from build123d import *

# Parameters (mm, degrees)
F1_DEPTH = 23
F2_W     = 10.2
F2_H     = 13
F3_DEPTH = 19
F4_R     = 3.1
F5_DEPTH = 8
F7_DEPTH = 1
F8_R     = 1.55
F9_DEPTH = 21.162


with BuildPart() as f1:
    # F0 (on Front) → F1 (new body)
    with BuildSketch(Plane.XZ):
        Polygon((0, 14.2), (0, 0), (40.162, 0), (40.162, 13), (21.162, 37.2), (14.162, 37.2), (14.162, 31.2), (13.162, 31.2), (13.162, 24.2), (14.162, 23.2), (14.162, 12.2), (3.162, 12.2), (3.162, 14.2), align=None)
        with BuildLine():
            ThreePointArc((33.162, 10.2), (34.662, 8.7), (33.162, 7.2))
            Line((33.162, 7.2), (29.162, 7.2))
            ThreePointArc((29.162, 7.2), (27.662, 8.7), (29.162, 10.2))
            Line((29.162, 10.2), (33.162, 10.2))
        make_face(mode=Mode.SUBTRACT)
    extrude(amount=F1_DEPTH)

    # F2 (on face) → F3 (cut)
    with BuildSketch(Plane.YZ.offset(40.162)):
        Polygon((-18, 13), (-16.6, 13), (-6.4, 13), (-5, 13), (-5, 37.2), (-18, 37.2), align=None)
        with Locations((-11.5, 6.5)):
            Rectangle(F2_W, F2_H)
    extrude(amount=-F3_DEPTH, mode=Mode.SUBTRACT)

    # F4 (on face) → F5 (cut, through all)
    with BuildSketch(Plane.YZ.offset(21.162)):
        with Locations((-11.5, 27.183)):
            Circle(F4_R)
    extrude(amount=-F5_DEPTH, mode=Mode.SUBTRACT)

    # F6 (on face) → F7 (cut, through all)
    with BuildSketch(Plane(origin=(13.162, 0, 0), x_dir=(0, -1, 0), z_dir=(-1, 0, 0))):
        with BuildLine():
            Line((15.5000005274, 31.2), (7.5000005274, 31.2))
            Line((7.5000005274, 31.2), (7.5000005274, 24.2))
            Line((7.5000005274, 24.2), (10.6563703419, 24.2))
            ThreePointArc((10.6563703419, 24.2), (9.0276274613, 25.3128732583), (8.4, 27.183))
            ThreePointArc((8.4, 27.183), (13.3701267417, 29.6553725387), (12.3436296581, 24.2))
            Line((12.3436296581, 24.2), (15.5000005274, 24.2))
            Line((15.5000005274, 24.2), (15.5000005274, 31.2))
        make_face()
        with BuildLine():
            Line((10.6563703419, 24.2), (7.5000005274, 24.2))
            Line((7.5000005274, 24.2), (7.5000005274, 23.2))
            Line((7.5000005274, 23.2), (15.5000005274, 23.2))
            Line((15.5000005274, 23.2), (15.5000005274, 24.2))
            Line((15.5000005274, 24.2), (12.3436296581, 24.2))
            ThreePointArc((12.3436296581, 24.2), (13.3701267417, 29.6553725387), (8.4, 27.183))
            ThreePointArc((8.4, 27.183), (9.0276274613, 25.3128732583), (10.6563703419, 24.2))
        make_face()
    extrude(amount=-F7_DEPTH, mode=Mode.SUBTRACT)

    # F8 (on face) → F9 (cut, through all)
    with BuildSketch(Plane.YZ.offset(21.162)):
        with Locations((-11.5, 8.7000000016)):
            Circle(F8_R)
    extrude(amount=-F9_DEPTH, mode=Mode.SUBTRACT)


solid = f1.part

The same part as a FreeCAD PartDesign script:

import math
import FreeCAD as App
import Part
import Sketcher

V = App.Vector
Q = App.Units.Quantity

doc = App.newDocument("Part")
body = doc.addObject("PartDesign::Body", "Body")

# Sketch on XZ plane
sketch1 = doc.addObject("Sketcher::SketchObject", "Sketch")
body.addObject(sketch1)
sketch1.AttachmentSupport = (doc.XZ_Plane, [""])
sketch1.MapMode = "FlatFace"
sketch1.addGeometry([
    Part.LineSegment(V(0, 14.2, 0), V(0, 0, 0)),  # 0
    Part.LineSegment(V(0, 0, 0), V(40.2, 0, 0)),  # 1
    Part.LineSegment(V(40.2, 0, 0), V(40.2, 13, 0)),  # 2
    Part.LineSegment(V(40.2, 13, 0), V(21.2, 37.2, 0)),  # 3
    Part.LineSegment(V(21.2, 37.2, 0), V(14.2, 37.2, 0)),  # 4
    Part.LineSegment(V(14.2, 37.2, 0), V(14.2, 31.2, 0)),  # 5
    Part.LineSegment(V(14.2, 31.2, 0), V(13.2, 31.2, 0)),  # 6
    Part.LineSegment(V(13.2, 31.2, 0), V(13.2, 24.2, 0)),  # 7
    Part.LineSegment(V(13.2, 24.2, 0), V(14.2, 23.2, 0)),  # 8
    Part.LineSegment(V(14.2, 23.2, 0), V(14.2, 12.2, 0)),  # 9
    Part.LineSegment(V(14.2, 12.2, 0), V(3.2, 12.2, 0)),  # 10
    Part.LineSegment(V(3.2, 12.2, 0), V(3.2, 14.2, 0)),  # 11
    Part.LineSegment(V(3.2, 14.2, 0), V(0, 14.2, 0)),  # 12
    Part.LineSegment(V(29.2, 10.2, 0), V(33.2, 10.2, 0)),  # 13
    Part.ArcOfCircle(Part.Circle(V(33.2, 8.7, 0), V(0, 0, 1), 1.5), math.radians(-90), math.radians(90)),  # 14
    Part.LineSegment(V(33.2, 7.2, 0), V(29.2, 7.2, 0)),  # 15
    Part.ArcOfCircle(Part.Circle(V(29.2, 8.7, 0), V(0, 0, 1), 1.5), math.radians(90), math.radians(270)),  # 16
], False)
sketch1.addConstraint([
    Sketcher.Constraint("Coincident", 0, 2, 1, 1),
    Sketcher.Constraint("Coincident", 1, 2, 2, 1),
    Sketcher.Constraint("Coincident", 2, 2, 3, 1),
    Sketcher.Constraint("Coincident", 3, 2, 4, 1),
    Sketcher.Constraint("Coincident", 4, 2, 5, 1),
    Sketcher.Constraint("Coincident", 5, 2, 6, 1),
    Sketcher.Constraint("Coincident", 6, 2, 7, 1),
    Sketcher.Constraint("Coincident", 7, 2, 8, 1),
    Sketcher.Constraint("Coincident", 8, 2, 9, 1),
    Sketcher.Constraint("Coincident", 9, 2, 10, 1),
    Sketcher.Constraint("Coincident", 10, 2, 11, 1),
    Sketcher.Constraint("Coincident", 11, 2, 12, 1),
    Sketcher.Constraint("Coincident", 12, 2, 0, 1),
    Sketcher.Constraint("Tangent", 13, 2, 14, 2),
    Sketcher.Constraint("Tangent", 14, 1, 15, 1),
    Sketcher.Constraint("Tangent", 15, 2, 16, 2),
    Sketcher.Constraint("Tangent", 16, 1, 13, 1),
    Sketcher.Constraint("Vertical", 0),
    Sketcher.Constraint("Horizontal", 1),
    Sketcher.Constraint("Vertical", 2),
    Sketcher.Constraint("Horizontal", 4),
    Sketcher.Constraint("Vertical", 5),
    Sketcher.Constraint("Horizontal", 6),
    Sketcher.Constraint("Vertical", 7),
    Sketcher.Constraint("Vertical", 9),
    Sketcher.Constraint("Horizontal", 10),
    Sketcher.Constraint("Vertical", 11),
    Sketcher.Constraint("Horizontal", 12),
    Sketcher.Constraint("Horizontal", 13),
    Sketcher.Constraint("Horizontal", 15),
    Sketcher.Constraint("Coincident", 0, 2, -1, 1),
    Sketcher.Constraint("Vertical", 5, 2, 8, 2),
    Sketcher.Constraint("Equal", 4, 7),
    Sketcher.Constraint("Equal", 10, 9),
    Sketcher.Constraint("Radius", 14, 1.5),
    Sketcher.Constraint("DistanceX", 4, 2, 4, 1, 7.0),
    Sketcher.Constraint("DistanceX", 6, 2, 6, 1, 1.0),
    Sketcher.Constraint("DistanceX", 10, 2, 10, 1, 11.0),
    Sketcher.Constraint("DistanceX", 13, 1, 13, 2, 4.0),
    Sketcher.Constraint("DistanceY", 2, 1, 2, 2, 13.0),
    Sketcher.Constraint("DistanceY", 5, 2, 5, 1, 6.0),
    Sketcher.Constraint("DistanceY", 11, 1, 11, 2, 2.0),
    Sketcher.Constraint("Angle", 8, Q("-45 deg")),
    Sketcher.Constraint("DistanceY", 0, 2, 0, 1, 14.2),
    Sketcher.Constraint("DistanceX", 14, 3, 1, 2, 7.0),
    Sketcher.Constraint("DistanceX", 3, 2, 16, 3, 8.0),
    Sketcher.Constraint("DistanceY", 13, 2, 9, 2, 2.0),
    Sketcher.Constraint("DistanceX", 1, 1, 1, 2, 40.162),
])
pad1 = doc.addObject("PartDesign::Pad", "Pad")
body.addObject(pad1)
pad1.Profile = sketch1
pad1.Length = 23

# Sketch on YZ plane
sketch2 = doc.addObject("Sketcher::SketchObject", "Sketch001")
body.addObject(sketch2)
sketch2.AttachmentSupport = (doc.YZ_Plane, [""])
sketch2.MapMode = "FlatFace"
sketch2.AttachmentOffset = App.Placement(V(0, 0, 40.162), App.Rotation())
sketch2.addGeometry([
    Part.LineSegment(V(-18, 13, 0), V(-16.6, 13, 0)),  # 0
    Part.LineSegment(V(-16.6, 13, 0), V(-16.6, 0, 0)),  # 1
    Part.LineSegment(V(-16.6, 0, 0), V(-6.4, 0, 0)),  # 2
    Part.LineSegment(V(-6.4, 0, 0), V(-6.4, 13, 0)),  # 3
    Part.LineSegment(V(-6.4, 13, 0), V(-5, 13, 0)),  # 4
    Part.LineSegment(V(-5, 13, 0), V(-5, 37.2, 0)),  # 5
    Part.LineSegment(V(-5, 37.2, 0), V(-18, 37.2, 0)),  # 6
    Part.LineSegment(V(-18, 37.2, 0), V(-18, 13, 0)),  # 7
], False)
sketch2.addConstraint([
    Sketcher.Constraint("Coincident", 0, 2, 1, 1),
    Sketcher.Constraint("Coincident", 1, 2, 2, 1),
    Sketcher.Constraint("Coincident", 2, 2, 3, 1),
    Sketcher.Constraint("Coincident", 3, 2, 4, 1),
    Sketcher.Constraint("Coincident", 4, 2, 5, 1),
    Sketcher.Constraint("Coincident", 5, 2, 6, 1),
    Sketcher.Constraint("Coincident", 6, 2, 7, 1),
    Sketcher.Constraint("Coincident", 7, 2, 0, 1),
    Sketcher.Constraint("Horizontal", 0),
    Sketcher.Constraint("Vertical", 1),
    Sketcher.Constraint("Horizontal", 2),
    Sketcher.Constraint("Vertical", 3),
    Sketcher.Constraint("Horizontal", 4),
    Sketcher.Constraint("Vertical", 5),
    Sketcher.Constraint("Horizontal", 6),
    Sketcher.Constraint("Vertical", 7),
    Sketcher.Constraint("PointOnObject", 1, 2, -1),
    Sketcher.Constraint("Horizontal", 0, 2, 3, 2),
    Sketcher.Constraint("Equal", 0, 4),
    Sketcher.Constraint("Equal", 6, 1),
    Sketcher.Constraint("DistanceX", 6, 2, 6, 1, 13.0),
    Sketcher.Constraint("DistanceX", 0, 1, 0, 2, 1.4),
    Sketcher.Constraint("DistanceY", 5, 1, 5, 2, 24.2),
    Sketcher.Constraint("DistanceX", 4, 2, -1, 1, 5.0),
])
pocket1 = doc.addObject("PartDesign::Pocket", "Pocket")
body.addObject(pocket1)
pocket1.Profile = sketch2
pocket1.Length = 19

# Sketch on YZ plane
sketch3 = doc.addObject("Sketcher::SketchObject", "Sketch002")
body.addObject(sketch3)
sketch3.AttachmentSupport = (doc.YZ_Plane, [""])
sketch3.MapMode = "FlatFace"
sketch3.AttachmentOffset = App.Placement(V(0, 0, 21.162), App.Rotation())
sketch3.addGeometry(Part.Circle(V(-11.5, 27.2, 0), V(0, 0, 1), 3.1), False)
sketch3.addConstraint([
    Sketcher.Constraint("Diameter", 0, 6.2),
    Sketcher.Constraint("DistanceX", 0, 3, -1, 1, 11.5),
    Sketcher.Constraint("DistanceY", -1, 1, 0, 3, 27.183),
])
pocket2 = doc.addObject("PartDesign::Pocket", "Pocket001")
body.addObject(pocket2)
pocket2.Profile = sketch3
pocket2.Type = "ThroughAll"

# Sketch on YZ plane
sketch4 = doc.addObject("Sketcher::SketchObject", "Sketch003")
body.addObject(sketch4)
sketch4.AttachmentSupport = (doc.YZ_Plane, [""])
sketch4.MapMode = "FlatFace"
sketch4.AttachmentOffset = App.Placement(V(0, 0, 13.162), App.Rotation())
sketch4.addGeometry([
    Part.LineSegment(V(-16, 31, 0), V(-8, 31, 0)),
    Part.LineSegment(V(-8, 31, 0), V(-8, 23, 0)),
    Part.LineSegment(V(-8, 23, 0), V(-16, 23, 0)),
    Part.LineSegment(V(-16, 23, 0), V(-16, 31, 0)),
], False)
sketch4.addConstraint([
    Sketcher.Constraint("Coincident", 0, 2, 1, 1),
    Sketcher.Constraint("Coincident", 1, 2, 2, 1),
    Sketcher.Constraint("Coincident", 2, 2, 3, 1),
    Sketcher.Constraint("Coincident", 3, 2, 0, 1),
    Sketcher.Constraint("Horizontal", 0),
    Sketcher.Constraint("Vertical", 1),
    Sketcher.Constraint("Horizontal", 2),
    Sketcher.Constraint("Vertical", 3),
    Sketcher.Constraint("Equal", 2, 1),
    Sketcher.Constraint("DistanceX", 0, 1, 0, 2, 8.0),
    Sketcher.Constraint("DistanceX", 0, 2, -1, 1, 7.500001),
    Sketcher.Constraint("DistanceY", -1, 1, 0, 2, 31.2),
])
pocket3 = doc.addObject("PartDesign::Pocket", "Pocket002")
body.addObject(pocket3)
pocket3.Profile = sketch4
pocket3.Length = 1
pocket3.Reversed = True

# Sketch on YZ plane
sketch5 = doc.addObject("Sketcher::SketchObject", "Sketch004")
body.addObject(sketch5)
sketch5.AttachmentSupport = (doc.YZ_Plane, [""])
sketch5.MapMode = "FlatFace"
sketch5.AttachmentOffset = App.Placement(V(0, 0, 21.162), App.Rotation())
sketch5.addGeometry(Part.Circle(V(-11.5, 8.7, 0), V(0, 0, 1), 1.6), False)
sketch5.addConstraint([
    Sketcher.Constraint("Diameter", 0, 3.1),
    Sketcher.Constraint("DistanceX", 0, 3, -1, 1, 11.5),
    Sketcher.Constraint("DistanceY", -1, 1, 0, 3, 8.7),
])
pocket4 = doc.addObject("PartDesign::Pocket", "Pocket003")
body.addObject(pocket4)
pocket4.Profile = sketch5
pocket4.Type = "ThroughAll"

doc.recompute()
